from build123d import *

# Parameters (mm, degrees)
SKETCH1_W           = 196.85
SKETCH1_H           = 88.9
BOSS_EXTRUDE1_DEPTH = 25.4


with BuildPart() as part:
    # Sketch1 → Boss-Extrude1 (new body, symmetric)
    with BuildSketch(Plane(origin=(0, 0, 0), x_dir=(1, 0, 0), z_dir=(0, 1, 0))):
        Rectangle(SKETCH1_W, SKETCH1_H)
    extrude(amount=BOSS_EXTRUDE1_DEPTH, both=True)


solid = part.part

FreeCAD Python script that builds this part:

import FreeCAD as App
import Part
import Sketcher
from FreeCAD import Vector
Q = App.Units.Quantity

doc = App.newDocument("Part")
body = doc.addObject("PartDesign::Body", "Body")

# Sketch on XZ plane
sketch1 = body.newObject("Sketcher::SketchObject", "Sketch")
sketch1.AttachmentSupport = (doc.getObject("XZ_Plane"), [""])
sketch1.MapMode = "FlatFace"
sketch1.addGeometry(Part.LineSegment(Vector(-98, -44, 0), Vector(-98, 44, 0)), False)
sketch1.addGeometry(Part.LineSegment(Vector(-98, 44, 0), Vector(98, 44, 0)), False)
sketch1.addGeometry(Part.LineSegment(Vector(98, 44, 0), Vector(98, -44, 0)), False)
sketch1.addGeometry(Part.LineSegment(Vector(98, -44, 0), Vector(-98, -44, 0)), False)
sketch1.addConstraint(Sketcher.Constraint("Coincident", 0, 2, 1, 1))
sketch1.addConstraint(Sketcher.Constraint("Coincident", 1, 2, 2, 1))
sketch1.addConstraint(Sketcher.Constraint("Coincident", 2, 2, 3, 1))
sketch1.addConstraint(Sketcher.Constraint("Coincident", 3, 2, 0, 1))
sketch1.addConstraint(Sketcher.Constraint("Vertical", 0))
sketch1.addConstraint(Sketcher.Constraint("Horizontal", 1))
sketch1.addConstraint(Sketcher.Constraint("Vertical", 2))
sketch1.addConstraint(Sketcher.Constraint("Horizontal", 3))
sketch1.addConstraint(Sketcher.Constraint("Symmetric", 0, 2, 2, 2, -1, 1))
sketch1.addConstraint(Sketcher.Constraint("DistanceY", 0, 1, 0, 2, Q("3.5 in")))
sketch1.addConstraint(Sketcher.Constraint("DistanceX", 1, 1, 1, 2, Q("7.75 in")))
pad1 = body.newObject("PartDesign::Pad", "Pad")
pad1.Profile = sketch1
pad1.Length = Q("2 in")
pad1.Midplane = True

doc.recompute()
